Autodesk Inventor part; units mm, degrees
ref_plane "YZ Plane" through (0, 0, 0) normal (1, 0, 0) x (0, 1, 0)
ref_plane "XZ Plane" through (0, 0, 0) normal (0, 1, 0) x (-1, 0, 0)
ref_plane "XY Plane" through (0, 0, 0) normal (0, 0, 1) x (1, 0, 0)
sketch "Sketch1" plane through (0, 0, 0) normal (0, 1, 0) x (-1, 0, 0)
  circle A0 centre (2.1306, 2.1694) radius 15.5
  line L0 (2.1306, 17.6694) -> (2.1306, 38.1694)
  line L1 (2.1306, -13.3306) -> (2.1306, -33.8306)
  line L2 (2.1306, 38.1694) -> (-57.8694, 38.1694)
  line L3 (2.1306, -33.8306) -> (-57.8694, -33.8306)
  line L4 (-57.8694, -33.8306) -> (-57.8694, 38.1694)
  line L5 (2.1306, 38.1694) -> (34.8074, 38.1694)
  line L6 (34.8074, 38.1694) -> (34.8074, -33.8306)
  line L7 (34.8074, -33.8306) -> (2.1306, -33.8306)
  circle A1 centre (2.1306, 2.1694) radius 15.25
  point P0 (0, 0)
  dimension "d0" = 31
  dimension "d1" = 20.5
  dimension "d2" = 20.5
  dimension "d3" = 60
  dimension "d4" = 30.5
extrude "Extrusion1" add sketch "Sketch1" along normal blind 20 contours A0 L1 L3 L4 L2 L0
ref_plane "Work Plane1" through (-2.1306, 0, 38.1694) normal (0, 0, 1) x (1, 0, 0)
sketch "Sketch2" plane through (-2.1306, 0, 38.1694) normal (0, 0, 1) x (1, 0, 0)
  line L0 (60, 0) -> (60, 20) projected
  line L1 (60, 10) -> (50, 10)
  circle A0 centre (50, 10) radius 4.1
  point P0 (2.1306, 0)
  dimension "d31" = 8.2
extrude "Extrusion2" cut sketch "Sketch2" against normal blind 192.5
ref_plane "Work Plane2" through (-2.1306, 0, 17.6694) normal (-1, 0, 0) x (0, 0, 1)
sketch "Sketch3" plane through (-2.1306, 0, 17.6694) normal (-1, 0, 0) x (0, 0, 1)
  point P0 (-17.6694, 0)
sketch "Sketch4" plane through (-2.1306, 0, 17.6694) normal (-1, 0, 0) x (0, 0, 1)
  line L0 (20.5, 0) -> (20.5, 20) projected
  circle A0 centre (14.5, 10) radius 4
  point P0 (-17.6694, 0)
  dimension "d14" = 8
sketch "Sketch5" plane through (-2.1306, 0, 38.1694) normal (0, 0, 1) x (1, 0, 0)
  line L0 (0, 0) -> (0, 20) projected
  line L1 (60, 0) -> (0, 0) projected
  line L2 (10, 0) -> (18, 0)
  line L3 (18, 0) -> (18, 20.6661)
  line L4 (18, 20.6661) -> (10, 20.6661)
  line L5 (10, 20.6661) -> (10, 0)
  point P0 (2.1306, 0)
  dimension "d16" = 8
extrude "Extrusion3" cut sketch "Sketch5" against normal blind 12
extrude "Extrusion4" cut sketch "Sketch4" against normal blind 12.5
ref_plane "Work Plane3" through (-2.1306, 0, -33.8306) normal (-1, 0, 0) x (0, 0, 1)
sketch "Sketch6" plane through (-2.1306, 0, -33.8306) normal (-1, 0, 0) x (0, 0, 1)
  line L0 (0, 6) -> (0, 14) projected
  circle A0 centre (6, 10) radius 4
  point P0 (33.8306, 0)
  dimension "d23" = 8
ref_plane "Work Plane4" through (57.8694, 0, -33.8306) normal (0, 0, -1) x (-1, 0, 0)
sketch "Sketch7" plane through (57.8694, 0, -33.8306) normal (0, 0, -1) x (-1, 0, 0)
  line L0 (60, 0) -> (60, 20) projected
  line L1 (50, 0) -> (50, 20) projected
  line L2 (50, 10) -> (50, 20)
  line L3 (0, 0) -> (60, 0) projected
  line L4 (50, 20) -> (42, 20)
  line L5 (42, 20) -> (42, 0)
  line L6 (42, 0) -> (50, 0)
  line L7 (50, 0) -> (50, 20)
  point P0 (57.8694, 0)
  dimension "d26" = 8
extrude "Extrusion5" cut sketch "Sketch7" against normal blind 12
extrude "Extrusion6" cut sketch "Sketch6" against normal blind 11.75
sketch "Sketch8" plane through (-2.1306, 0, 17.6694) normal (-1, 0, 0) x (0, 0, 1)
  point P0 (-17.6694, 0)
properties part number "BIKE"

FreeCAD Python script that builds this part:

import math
import FreeCAD as App
import Part
import Sketcher

V = App.Vector
Q = App.Units.Quantity

doc = App.newDocument("Part")
params = doc.addObject("Spreadsheet::Sheet", "Params")
for row, (alias, value) in enumerate([
    ("sketch1_radius", "15.5 mm"),
    ("sketch1_width", "60 mm"),
    ("sketch1_height", "20.5 mm"),
    ("pad1_length", "20 mm"),
    ("sketch2_diameter", "8.2 mm"),
    ("pocket1_length", "192.5 mm"),
    ("sketch3_width", "8 mm"),
    ("pocket2_length", "12 mm"),
    ("sketch4_diameter", "8 mm"),
    ("pocket3_length", "12.5 mm"),
    ("sketch5_width", "8 mm"),
    ("sketch5_height", "20 mm"),
    ("pocket4_length", "12 mm"),
    ("sketch6_diameter", "8 mm"),
    ("pocket5_length", "11.75 mm"),
], start=1):
    params.set(f"A{row}", alias)
    params.set(f"B{row}", "=" + value)
    params.setAlias(f"B{row}", alias)

body = doc.addObject("PartDesign::Body", "Body")

sketch1 = body.newObject("Sketcher::SketchObject", "Sketch")
sketch1.AttachmentSupport = (doc.getObject("XZ_Plane"), [""])
sketch1.MapMode = "FlatFace"
sketch1.addGeometry([
    Part.ArcOfCircle(Part.Circle(V(-2.1306, 2.1694, 0), V(0, 0, 1), 15.5), math.radians(-90), math.radians(90)),
    Part.LineSegment(V(-2.1306, 17.6694, 0), V(-2.1306, 38.1694, 0)),
    Part.LineSegment(V(-2.1306, 38.1694, 0), V(57.8694, 38.1694, 0)),
    Part.LineSegment(V(57.8694, 38.1694, 0), V(57.8694, -33.8306, 0)),
    Part.LineSegment(V(57.8694, -33.8306, 0), V(-2.1306, -33.8306, 0)),
    Part.LineSegment(V(-2.1306, -33.8306, 0), V(-2.1306, -13.3306, 0)),
], False)
sketch1.addConstraint([
    Sketcher.Constraint("Coincident", 0, 2, 1, 1),
    Sketcher.Constraint("Coincident", 1, 2, 2, 1),
    Sketcher.Constraint("Coincident", 2, 2, 3, 1),
    Sketcher.Constraint("Coincident", 3, 2, 4, 1),
    Sketcher.Constraint("Coincident", 4, 2, 5, 1),
    Sketcher.Constraint("Coincident", 5, 2, 0, 1),
    Sketcher.Constraint("Vertical", 1),
    Sketcher.Constraint("Horizontal", 2),
    Sketcher.Constraint("Vertical", 3),
    Sketcher.Constraint("Horizontal", 4),
    Sketcher.Constraint("Vertical", 5),
    Sketcher.Constraint("Vertical", 1, 2, 4, 2),
    Sketcher.Constraint("Equal", 1, 5),
    Sketcher.Constraint("Radius", 0, Q("15.5 mm")),
    Sketcher.Constraint("DistanceX", 2, 1, 2, 2, Q("60 mm")),
    Sketcher.Constraint("DistanceY", 1, 1, 1, 2, Q("20.5 mm")),
    Sketcher.Constraint("DistanceX", 0, 3, 2, 2, Q("60 mm")),
    Sketcher.Constraint("DistanceX", 0, 3, -1, 1, Q("2.1306 mm")),
    Sketcher.Constraint("DistanceY", -1, 1, 0, 3, Q("2.1694 mm")),
])
sketch1.setExpression("Constraints[13]", "Params.sketch1_radius")
sketch1.setExpression("Constraints[14]", "Params.sketch1_width")
sketch1.setExpression("Constraints[15]", "Params.sketch1_height")
pad1 = body.newObject("PartDesign::Pad", "Pad")
pad1.Profile = sketch1
pad1.setExpression("Length", "Params.pad1_length")
pad1.Reversed = True

sketch2 = body.newObject("Sketcher::SketchObject", "Sketch001")
sketch2.AttachmentSupport = (doc.getObject("XY_Plane"), [""])
sketch2.MapMode = "FlatFace"
sketch2.AttachmentOffset = App.Placement(V(0, 0, 38.1694), App.Rotation())
sketch2.addGeometry(Part.Circle(V(47.8694, 10, 0), V(0, 0, 1), 4.1), False)
sketch2.addConstraint([
    Sketcher.Constraint("Diameter", 0, Q("8.2 mm")),
    Sketcher.Constraint("DistanceY", -1, 1, 0, 3, Q("10 mm")),
    Sketcher.Constraint("DistanceX", -1, 1, 0, 3, Q("47.8694 mm")),
])
sketch2.setExpression("Constraints[0]", "Params.sketch2_diameter")
pocket1 = body.newObject("PartDesign::Pocket", "Pocket")
pocket1.Profile = sketch2
pocket1.setExpression("Length", "Params.pocket1_length")

sketch3 = body.newObject("Sketcher::SketchObject", "Sketch002")
sketch3.AttachmentSupport = (doc.getObject("XY_Plane"), [""])
sketch3.MapMode = "FlatFace"
sketch3.AttachmentOffset = App.Placement(V(0, 0, 38.1694), App.Rotation())
sketch3.addGeometry([
    Part.LineSegment(V(7.8694, 0, 0), V(15.8694, 0, 0)),
    Part.LineSegment(V(15.8694, 0, 0), V(15.8694, 20.6661, 0)),
    Part.LineSegment(V(15.8694, 20.6661, 0), V(7.8694, 20.6661, 0)),
    Part.LineSegment(V(7.8694, 20.6661, 0), V(7.8694, 0, 0)),
], False)
sketch3.addConstraint([
    Sketcher.Constraint("Coincident", 0, 2, 1, 1),
    Sketcher.Constraint("Coincident", 1, 2, 2, 1),
    Sketcher.Constraint("Coincident", 2, 2, 3, 1),
    Sketcher.Constraint("Coincident", 3, 2, 0, 1),
    Sketcher.Constraint("Horizontal", 0),
    Sketcher.Constraint("Vertical", 1),
    Sketcher.Constraint("Horizontal", 2),
    Sketcher.Constraint("Vertical", 3),
    Sketcher.Constraint("PointOnObject", 0, 2, -1),
    Sketcher.Constraint("DistanceX", 0, 1, 0, 2, Q("8 mm")),
    Sketcher.Constraint("DistanceY", 1, 1, 1, 2, Q("20.666 mm")),
    Sketcher.Constraint("DistanceX", -1, 1, 0, 2, Q("15.8694 mm")),
])
sketch3.setExpression("Constraints[9]", "Params.sketch3_width")
pocket2 = body.newObject("PartDesign::Pocket", "Pocket001")
pocket2.Profile = sketch3
pocket2.setExpression("Length", "Params.pocket2_length")

sketch4 = body.newObject("Sketcher::SketchObject", "Sketch003")
sketch4.AttachmentSupport = (doc.getObject("YZ_Plane"), [""])
sketch4.MapMode = "FlatFace"
sketch4.AttachmentOffset = App.Placement(V(0, 0, -2.1306), App.Rotation())
sketch4.addGeometry(Part.Circle(V(10, 32.1694, 0), V(0, 0, 1), 4), False)
sketch4.addConstraint([
    Sketcher.Constraint("Diameter", 0, Q("8 mm")),
    Sketcher.Constraint("DistanceX", -1, 1, 0, 3, Q("10 mm")),
    Sketcher.Constraint("DistanceY", -1, 1, 0, 3, Q("32.1694 mm")),
])
sketch4.setExpression("Constraints[0]", "Params.sketch4_diameter")
pocket3 = body.newObject("PartDesign::Pocket", "Pocket002")
pocket3.Profile = sketch4
pocket3.setExpression("Length", "Params.pocket3_length")
pocket3.Reversed = True

sketch5 = body.newObject("Sketcher::SketchObject", "Sketch004")
sketch5.AttachmentSupport = (doc.getObject("XY_Plane"), [""])
sketch5.MapMode = "FlatFace"
sketch5.AttachmentOffset = App.Placement(V(0, 0, -33.8306), App.Rotation())
sketch5.addGeometry([
    Part.LineSegment(V(15.8694, 0, 0), V(7.8694, 0, 0)),
    Part.LineSegment(V(7.8694, 0, 0), V(7.8694, 20, 0)),
    Part.LineSegment(V(7.8694, 20, 0), V(15.8694, 20, 0)),
    Part.LineSegment(V(15.8694, 20, 0), V(15.8694, 0, 0)),
], False)
sketch5.addConstraint([
    Sketcher.Constraint("Coincident", 0, 2, 1, 1),
    Sketcher.Constraint("Coincident", 1, 2, 2, 1),
    Sketcher.Constraint("Coincident", 2, 2, 3, 1),
    Sketcher.Constraint("Coincident", 3, 2, 0, 1),
    Sketcher.Constraint("Horizontal", 0),
    Sketcher.Constraint("Vertical", 1),
    Sketcher.Constraint("Horizontal", 2),
    Sketcher.Constraint("Vertical", 3),
    Sketcher.Constraint("PointOnObject", 0, 2, -1),
    Sketcher.Constraint("DistanceX", 0, 2, 0, 1, Q("8 mm")),
    Sketcher.Constraint("DistanceY", 1, 1, 1, 2, Q("20 mm")),
    Sketcher.Constraint("DistanceX", -1, 1, 0, 2, Q("7.8694 mm")),
])
sketch5.setExpression("Constraints[9]", "Params.sketch5_width")
sketch5.setExpression("Constraints[10]", "Params.sketch5_height")
pocket4 = body.newObject("PartDesign::Pocket", "Pocket003")
pocket4.Profile = sketch5
pocket4.setExpression("Length", "Params.pocket4_length")
pocket4.Reversed = True

sketch6 = body.newObject("Sketcher::SketchObject", "Sketch005")
sketch6.AttachmentSupport = (doc.getObject("YZ_Plane"), [""])
sketch6.MapMode = "FlatFace"
sketch6.AttachmentOffset = App.Placement(V(0, 0, -2.1306), App.Rotation())
sketch6.addGeometry(Part.Circle(V(10, -27.8306, 0), V(0, 0, 1), 4), False)
sketch6.addConstraint([
    Sketcher.Constraint("Diameter", 0, Q("8 mm")),
    Sketcher.Constraint("DistanceX", -1, 1, 0, 3, Q("10 mm")),
    Sketcher.Constraint("DistanceY", 0, 3, -1, 1, Q("27.8306 mm")),
])
sketch6.setExpression("Constraints[0]", "Params.sketch6_diameter")
pocket5 = body.newObject("PartDesign::Pocket", "Pocket004")
pocket5.Profile = sketch6
pocket5.setExpression("Length", "Params.pocket5_length")
pocket5.Reversed = True

doc.recompute()
